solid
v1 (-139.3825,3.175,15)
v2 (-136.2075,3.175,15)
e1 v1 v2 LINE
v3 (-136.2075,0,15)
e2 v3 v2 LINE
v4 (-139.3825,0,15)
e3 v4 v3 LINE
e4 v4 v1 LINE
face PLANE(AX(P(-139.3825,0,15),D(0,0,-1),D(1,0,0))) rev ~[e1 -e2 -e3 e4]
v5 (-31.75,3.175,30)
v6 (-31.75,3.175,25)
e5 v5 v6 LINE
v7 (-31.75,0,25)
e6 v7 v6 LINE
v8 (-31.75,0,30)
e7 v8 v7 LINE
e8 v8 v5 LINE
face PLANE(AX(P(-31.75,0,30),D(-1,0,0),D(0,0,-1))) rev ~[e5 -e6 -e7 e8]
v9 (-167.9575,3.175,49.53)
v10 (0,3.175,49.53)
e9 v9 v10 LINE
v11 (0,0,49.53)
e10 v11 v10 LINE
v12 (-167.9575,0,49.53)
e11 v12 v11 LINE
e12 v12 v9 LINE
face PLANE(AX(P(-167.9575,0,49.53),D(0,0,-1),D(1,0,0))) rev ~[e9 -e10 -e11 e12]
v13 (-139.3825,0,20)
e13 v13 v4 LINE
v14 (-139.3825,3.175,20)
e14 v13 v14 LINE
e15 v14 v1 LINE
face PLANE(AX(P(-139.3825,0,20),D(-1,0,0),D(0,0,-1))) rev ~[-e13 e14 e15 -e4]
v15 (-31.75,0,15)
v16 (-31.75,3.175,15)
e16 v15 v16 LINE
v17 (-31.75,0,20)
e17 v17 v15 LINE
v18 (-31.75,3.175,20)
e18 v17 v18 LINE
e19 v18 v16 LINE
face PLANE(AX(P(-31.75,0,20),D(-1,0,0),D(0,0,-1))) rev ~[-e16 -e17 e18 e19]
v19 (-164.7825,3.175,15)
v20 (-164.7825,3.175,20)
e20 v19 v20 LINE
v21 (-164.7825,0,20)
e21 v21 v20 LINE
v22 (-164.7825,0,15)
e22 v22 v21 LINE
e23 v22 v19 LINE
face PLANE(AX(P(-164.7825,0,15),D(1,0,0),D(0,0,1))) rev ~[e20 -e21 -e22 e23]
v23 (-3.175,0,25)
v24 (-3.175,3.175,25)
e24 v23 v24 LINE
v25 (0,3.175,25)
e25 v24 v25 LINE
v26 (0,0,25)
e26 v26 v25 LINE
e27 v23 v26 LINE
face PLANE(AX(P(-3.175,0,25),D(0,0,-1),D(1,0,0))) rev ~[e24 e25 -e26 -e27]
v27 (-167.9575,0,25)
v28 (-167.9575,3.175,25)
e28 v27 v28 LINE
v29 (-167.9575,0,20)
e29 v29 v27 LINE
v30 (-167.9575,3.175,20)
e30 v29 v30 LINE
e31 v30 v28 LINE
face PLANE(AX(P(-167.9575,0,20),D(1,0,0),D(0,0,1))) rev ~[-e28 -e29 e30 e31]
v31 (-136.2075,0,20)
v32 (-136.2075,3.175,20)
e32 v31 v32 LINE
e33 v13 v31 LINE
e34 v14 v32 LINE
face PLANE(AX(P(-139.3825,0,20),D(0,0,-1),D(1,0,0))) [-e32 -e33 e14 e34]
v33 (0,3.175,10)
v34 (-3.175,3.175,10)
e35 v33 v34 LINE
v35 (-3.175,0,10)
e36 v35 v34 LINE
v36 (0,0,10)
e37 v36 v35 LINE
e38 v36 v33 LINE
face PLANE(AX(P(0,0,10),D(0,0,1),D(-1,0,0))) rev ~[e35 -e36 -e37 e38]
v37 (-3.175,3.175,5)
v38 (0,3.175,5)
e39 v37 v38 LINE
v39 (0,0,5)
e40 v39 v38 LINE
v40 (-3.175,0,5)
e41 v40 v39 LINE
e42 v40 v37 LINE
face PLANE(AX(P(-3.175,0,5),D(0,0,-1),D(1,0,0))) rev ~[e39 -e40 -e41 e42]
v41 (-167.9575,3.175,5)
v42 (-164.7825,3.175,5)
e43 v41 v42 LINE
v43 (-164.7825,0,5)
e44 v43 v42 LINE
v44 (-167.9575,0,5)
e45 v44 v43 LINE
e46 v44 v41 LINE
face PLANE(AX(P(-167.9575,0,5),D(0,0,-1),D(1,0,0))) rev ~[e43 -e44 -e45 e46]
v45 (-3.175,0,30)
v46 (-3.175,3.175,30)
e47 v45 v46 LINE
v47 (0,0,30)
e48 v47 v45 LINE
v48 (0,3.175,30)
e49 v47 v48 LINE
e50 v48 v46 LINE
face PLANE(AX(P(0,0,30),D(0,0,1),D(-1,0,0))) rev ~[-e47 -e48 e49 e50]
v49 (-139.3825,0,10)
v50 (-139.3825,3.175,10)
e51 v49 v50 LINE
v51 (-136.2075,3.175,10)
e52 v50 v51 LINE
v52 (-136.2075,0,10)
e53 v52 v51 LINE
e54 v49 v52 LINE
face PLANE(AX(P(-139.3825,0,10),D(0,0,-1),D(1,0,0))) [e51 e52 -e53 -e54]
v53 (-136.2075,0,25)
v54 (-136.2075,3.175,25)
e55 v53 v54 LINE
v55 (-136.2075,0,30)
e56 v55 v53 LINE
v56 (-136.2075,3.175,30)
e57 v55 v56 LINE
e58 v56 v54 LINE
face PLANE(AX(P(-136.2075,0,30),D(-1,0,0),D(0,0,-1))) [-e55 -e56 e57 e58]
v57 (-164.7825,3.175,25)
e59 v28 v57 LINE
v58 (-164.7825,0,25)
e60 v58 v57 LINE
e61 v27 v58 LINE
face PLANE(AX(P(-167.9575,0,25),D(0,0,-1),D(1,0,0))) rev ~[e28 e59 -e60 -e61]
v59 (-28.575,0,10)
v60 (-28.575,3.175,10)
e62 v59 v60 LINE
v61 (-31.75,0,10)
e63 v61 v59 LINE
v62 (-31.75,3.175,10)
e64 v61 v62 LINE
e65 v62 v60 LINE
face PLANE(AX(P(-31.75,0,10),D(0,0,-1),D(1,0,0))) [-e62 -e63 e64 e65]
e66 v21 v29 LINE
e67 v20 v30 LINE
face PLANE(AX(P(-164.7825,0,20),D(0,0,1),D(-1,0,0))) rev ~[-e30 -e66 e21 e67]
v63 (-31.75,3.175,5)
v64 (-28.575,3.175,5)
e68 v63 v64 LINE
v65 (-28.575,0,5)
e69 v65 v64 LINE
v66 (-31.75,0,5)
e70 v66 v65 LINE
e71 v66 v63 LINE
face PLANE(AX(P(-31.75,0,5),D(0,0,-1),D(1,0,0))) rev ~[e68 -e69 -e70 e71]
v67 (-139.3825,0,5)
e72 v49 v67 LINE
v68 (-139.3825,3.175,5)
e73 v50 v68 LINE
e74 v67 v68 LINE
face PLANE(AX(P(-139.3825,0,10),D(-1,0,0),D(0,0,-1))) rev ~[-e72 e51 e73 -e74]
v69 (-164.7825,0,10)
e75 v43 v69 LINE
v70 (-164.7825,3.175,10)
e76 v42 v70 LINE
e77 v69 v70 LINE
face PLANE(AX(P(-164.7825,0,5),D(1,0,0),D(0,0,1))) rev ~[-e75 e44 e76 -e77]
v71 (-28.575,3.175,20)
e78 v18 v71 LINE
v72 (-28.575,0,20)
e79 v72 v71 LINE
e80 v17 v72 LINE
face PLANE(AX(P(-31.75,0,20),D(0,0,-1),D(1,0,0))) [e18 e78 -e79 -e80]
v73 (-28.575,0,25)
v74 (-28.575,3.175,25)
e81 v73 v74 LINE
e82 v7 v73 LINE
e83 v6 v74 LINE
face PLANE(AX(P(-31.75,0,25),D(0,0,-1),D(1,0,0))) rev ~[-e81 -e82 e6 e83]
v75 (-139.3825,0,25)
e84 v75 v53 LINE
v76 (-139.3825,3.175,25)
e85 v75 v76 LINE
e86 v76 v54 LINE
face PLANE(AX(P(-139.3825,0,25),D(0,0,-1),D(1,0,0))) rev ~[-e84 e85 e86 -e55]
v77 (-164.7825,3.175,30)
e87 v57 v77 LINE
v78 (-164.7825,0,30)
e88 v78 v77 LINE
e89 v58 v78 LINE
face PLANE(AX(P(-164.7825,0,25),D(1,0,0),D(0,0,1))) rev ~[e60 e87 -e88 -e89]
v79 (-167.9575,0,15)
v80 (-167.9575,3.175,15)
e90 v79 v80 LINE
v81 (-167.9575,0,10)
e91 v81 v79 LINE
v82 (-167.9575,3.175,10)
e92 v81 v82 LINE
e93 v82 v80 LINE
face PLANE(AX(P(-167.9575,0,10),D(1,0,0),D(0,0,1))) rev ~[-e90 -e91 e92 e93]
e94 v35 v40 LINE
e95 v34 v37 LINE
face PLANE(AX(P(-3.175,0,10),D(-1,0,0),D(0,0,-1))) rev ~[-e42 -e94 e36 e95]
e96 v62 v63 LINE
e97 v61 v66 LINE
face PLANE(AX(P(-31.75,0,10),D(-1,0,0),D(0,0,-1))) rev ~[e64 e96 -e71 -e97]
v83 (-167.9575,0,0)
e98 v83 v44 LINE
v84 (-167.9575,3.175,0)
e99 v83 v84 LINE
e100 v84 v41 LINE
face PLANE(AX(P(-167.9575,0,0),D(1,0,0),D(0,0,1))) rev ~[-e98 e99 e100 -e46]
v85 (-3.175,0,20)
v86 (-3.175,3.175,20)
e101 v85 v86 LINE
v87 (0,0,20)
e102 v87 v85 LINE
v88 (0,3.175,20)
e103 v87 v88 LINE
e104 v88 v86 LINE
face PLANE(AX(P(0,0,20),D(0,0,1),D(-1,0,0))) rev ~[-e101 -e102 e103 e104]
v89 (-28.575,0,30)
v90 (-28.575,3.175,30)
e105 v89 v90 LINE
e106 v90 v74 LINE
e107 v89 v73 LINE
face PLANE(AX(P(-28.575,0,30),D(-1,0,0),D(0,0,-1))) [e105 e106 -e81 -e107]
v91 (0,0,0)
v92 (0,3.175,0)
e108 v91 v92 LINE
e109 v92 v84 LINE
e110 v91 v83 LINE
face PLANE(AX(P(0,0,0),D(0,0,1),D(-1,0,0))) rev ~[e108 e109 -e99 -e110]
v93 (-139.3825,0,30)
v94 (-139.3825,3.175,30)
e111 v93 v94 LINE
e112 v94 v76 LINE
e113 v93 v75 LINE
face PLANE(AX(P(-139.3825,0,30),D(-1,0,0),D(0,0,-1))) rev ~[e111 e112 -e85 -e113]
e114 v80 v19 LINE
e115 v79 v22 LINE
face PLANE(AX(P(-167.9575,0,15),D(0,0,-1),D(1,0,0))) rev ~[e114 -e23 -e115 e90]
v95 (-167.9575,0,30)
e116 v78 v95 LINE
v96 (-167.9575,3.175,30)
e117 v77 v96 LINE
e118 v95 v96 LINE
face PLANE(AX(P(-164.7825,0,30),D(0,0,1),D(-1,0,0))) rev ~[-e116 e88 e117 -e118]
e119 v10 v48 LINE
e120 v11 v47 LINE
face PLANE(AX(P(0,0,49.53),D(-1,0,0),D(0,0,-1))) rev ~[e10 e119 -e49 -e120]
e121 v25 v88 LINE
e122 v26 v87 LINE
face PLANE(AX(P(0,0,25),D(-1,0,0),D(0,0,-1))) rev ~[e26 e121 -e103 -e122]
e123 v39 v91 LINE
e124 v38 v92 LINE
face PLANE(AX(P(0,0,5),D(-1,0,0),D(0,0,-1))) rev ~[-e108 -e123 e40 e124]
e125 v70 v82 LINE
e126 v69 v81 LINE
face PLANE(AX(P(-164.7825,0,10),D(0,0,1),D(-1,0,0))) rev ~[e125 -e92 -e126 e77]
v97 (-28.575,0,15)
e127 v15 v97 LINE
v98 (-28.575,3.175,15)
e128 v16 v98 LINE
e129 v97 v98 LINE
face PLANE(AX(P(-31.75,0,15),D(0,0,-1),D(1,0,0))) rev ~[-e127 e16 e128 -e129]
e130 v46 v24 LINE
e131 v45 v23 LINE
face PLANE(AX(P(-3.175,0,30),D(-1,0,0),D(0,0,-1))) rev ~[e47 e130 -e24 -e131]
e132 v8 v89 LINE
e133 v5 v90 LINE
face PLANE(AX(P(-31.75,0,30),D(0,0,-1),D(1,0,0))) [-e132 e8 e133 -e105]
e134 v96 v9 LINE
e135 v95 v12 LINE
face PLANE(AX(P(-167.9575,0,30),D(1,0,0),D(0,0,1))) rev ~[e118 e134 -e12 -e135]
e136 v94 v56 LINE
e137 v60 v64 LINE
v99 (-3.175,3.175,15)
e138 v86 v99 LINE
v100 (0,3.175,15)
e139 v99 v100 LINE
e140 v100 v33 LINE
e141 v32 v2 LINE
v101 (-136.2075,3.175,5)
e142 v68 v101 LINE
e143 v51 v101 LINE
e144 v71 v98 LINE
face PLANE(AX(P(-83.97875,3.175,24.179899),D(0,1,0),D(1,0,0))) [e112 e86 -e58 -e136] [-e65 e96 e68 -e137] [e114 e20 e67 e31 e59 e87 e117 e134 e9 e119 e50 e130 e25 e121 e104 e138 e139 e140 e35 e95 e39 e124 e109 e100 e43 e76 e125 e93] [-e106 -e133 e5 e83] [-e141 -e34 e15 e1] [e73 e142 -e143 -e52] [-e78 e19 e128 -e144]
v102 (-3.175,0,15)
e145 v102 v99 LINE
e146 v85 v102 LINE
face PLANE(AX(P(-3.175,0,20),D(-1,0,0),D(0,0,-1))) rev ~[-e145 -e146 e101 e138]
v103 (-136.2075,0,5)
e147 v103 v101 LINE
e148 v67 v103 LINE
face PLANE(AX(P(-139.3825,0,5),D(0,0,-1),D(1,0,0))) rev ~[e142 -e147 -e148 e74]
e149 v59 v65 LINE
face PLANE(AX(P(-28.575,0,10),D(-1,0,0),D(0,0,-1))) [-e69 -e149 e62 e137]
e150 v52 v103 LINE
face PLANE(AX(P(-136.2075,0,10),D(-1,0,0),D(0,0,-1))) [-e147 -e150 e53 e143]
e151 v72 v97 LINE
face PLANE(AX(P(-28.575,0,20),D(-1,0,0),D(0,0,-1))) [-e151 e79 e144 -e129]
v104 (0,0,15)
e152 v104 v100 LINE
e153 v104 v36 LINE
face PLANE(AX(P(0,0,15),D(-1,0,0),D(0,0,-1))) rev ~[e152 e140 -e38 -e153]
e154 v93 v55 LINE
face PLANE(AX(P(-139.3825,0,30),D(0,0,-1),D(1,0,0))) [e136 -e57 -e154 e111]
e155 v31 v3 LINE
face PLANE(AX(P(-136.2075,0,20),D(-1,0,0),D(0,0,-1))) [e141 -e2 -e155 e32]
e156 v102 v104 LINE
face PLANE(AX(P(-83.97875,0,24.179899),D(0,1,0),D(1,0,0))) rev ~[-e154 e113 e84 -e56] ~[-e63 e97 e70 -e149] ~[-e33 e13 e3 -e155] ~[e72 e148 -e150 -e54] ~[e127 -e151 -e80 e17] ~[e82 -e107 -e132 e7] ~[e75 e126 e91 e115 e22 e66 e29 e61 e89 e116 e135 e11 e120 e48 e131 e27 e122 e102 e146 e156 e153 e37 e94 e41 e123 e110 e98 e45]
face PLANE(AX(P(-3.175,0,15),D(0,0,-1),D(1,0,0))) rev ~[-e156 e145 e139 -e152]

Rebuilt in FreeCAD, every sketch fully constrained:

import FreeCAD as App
import Part
import Sketcher

V = App.Vector


def add_polygon(sketch, points):
    """Adds a closed chain of lines whose ends are joined by coincident constraints."""
    first, n = sketch.GeometryCount, len(points)
    for a, b in zip(points, points[1:] + points[:1]):
        sketch.addGeometry(Part.LineSegment(App.Vector(*a, 0), App.Vector(*b, 0)), False)
    for i in range(n):
        sketch.addConstraint(Sketcher.Constraint("Coincident", first + i, 2, first + (i + 1) % n, 1))

doc = App.newDocument("Part")
body = doc.addObject("PartDesign::Body", "Body")

# Sketch on XZ plane
sketch1 = body.newObject("Sketcher::SketchObject", "Sketch")
sketch1.AttachmentSupport = (doc.getObject("XZ_Plane"), [""])
sketch1.MapMode = "FlatFace"
add_polygon(sketch1, [(-168, 5), (-164.8, 5), (-164.8, 10), (-168, 10), (-168, 15), (-164.8, 15), (-164.8, 20), (-168, 20), (-168, 25), (-164.8, 25), (-164.8, 30), (-168, 30), (-168, 49.5), (0, 49.5), (0, 30), (-3.2, 30), (-3.2, 25), (0, 25), (0, 20), (-3.2, 20), (-3.2, 15), (0, 15), (0, 10), (-3.2, 10), (-3.2, 5), (0, 5), (0, 0), (-168, 0)])  # lines 0-27
add_polygon(sketch1, [(-136.2, 30), (-139.4, 30), (-139.4, 25), (-136.2, 25)])  # lines 28-31
add_polygon(sketch1, [(-28.6, 30), (-31.8, 30), (-31.8, 25), (-28.6, 25)])  # lines 32-35
add_polygon(sketch1, [(-136.2, 20), (-139.4, 20), (-139.4, 15), (-136.2, 15)])  # lines 36-39
add_polygon(sketch1, [(-136.2, 10), (-139.4, 10), (-139.4, 5), (-136.2, 5)])  # lines 40-43
add_polygon(sketch1, [(-28.6, 20), (-31.8, 20), (-31.8, 15), (-28.6, 15)])  # lines 44-47
add_polygon(sketch1, [(-28.6, 10), (-31.8, 10), (-31.8, 5), (-28.6, 5)])  # lines 48-51
sketch1.addConstraint(Sketcher.Constraint("Horizontal", 0))
sketch1.addConstraint(Sketcher.Constraint("Vertical", 1))
sketch1.addConstraint(Sketcher.Constraint("Horizontal", 2))
sketch1.addConstraint(Sketcher.Constraint("Vertical", 3))
sketch1.addConstraint(Sketcher.Constraint("Horizontal", 4))
sketch1.addConstraint(Sketcher.Constraint("Vertical", 5))
sketch1.addConstraint(Sketcher.Constraint("Horizontal", 6))
sketch1.addConstraint(Sketcher.Constraint("Vertical", 7))
sketch1.addConstraint(Sketcher.Constraint("Horizontal", 8))
sketch1.addConstraint(Sketcher.Constraint("Vertical", 9))
sketch1.addConstraint(Sketcher.Constraint("Horizontal", 10))
sketch1.addConstraint(Sketcher.Constraint("Vertical", 11))
sketch1.addConstraint(Sketcher.Constraint("Horizontal", 12))
sketch1.addConstraint(Sketcher.Constraint("Vertical", 13))
sketch1.addConstraint(Sketcher.Constraint("Horizontal", 14))
sketch1.addConstraint(Sketcher.Constraint("Vertical", 15))
sketch1.addConstraint(Sketcher.Constraint("Horizontal", 16))
sketch1.addConstraint(Sketcher.Constraint("Vertical", 17))
sketch1.addConstraint(Sketcher.Constraint("Horizontal", 18))
sketch1.addConstraint(Sketcher.Constraint("Vertical", 19))
sketch1.addConstraint(Sketcher.Constraint("Horizontal", 20))
sketch1.addConstraint(Sketcher.Constraint("Vertical", 21))
sketch1.addConstraint(Sketcher.Constraint("Horizontal", 22))
sketch1.addConstraint(Sketcher.Constraint("Vertical", 23))
sketch1.addConstraint(Sketcher.Constraint("Horizontal", 24))
sketch1.addConstraint(Sketcher.Constraint("Vertical", 25))
sketch1.addConstraint(Sketcher.Constraint("Horizontal", 26))
sketch1.addConstraint(Sketcher.Constraint("Vertical", 27))
sketch1.addConstraint(Sketcher.Constraint("Horizontal", 28))
sketch1.addConstraint(Sketcher.Constraint("Vertical", 29))
sketch1.addConstraint(Sketcher.Constraint("Horizontal", 30))
sketch1.addConstraint(Sketcher.Constraint("Vertical", 31))
sketch1.addConstraint(Sketcher.Constraint("Horizontal", 32))
sketch1.addConstraint(Sketcher.Constraint("Vertical", 33))
sketch1.addConstraint(Sketcher.Constraint("Horizontal", 34))
sketch1.addConstraint(Sketcher.Constraint("Vertical", 35))
sketch1.addConstraint(Sketcher.Constraint("Horizontal", 36))
sketch1.addConstraint(Sketcher.Constraint("Vertical", 37))
sketch1.addConstraint(Sketcher.Constraint("Horizontal", 38))
sketch1.addConstraint(Sketcher.Constraint("Vertical", 39))
sketch1.addConstraint(Sketcher.Constraint("Horizontal", 40))
sketch1.addConstraint(Sketcher.Constraint("Vertical", 41))
sketch1.addConstraint(Sketcher.Constraint("Horizontal", 42))
sketch1.addConstraint(Sketcher.Constraint("Vertical", 43))
sketch1.addConstraint(Sketcher.Constraint("Horizontal", 44))
sketch1.addConstraint(Sketcher.Constraint("Vertical", 45))
sketch1.addConstraint(Sketcher.Constraint("Horizontal", 46))
sketch1.addConstraint(Sketcher.Constraint("Vertical", 47))
sketch1.addConstraint(Sketcher.Constraint("Horizontal", 48))
sketch1.addConstraint(Sketcher.Constraint("Vertical", 49))
sketch1.addConstraint(Sketcher.Constraint("Horizontal", 50))
sketch1.addConstraint(Sketcher.Constraint("Vertical", 51))
sketch1.addConstraint(Sketcher.Constraint("Coincident", 25, 2, -1, 1))
sketch1.addConstraint(Sketcher.Constraint("PointOnObject", 12, 2, -2))
sketch1.addConstraint(Sketcher.Constraint("PointOnObject", 16, 2, -2))
sketch1.addConstraint(Sketcher.Constraint("PointOnObject", 20, 2, -2))
sketch1.addConstraint(Sketcher.Constraint("Horizontal", 10, 2, 13, 2))
sketch1.addConstraint(Sketcher.Constraint("Horizontal", 8, 2, 15, 2))
sketch1.addConstraint(Sketcher.Constraint("Horizontal", 6, 2, 17, 2))
sketch1.addConstraint(Sketcher.Constraint("Horizontal", 4, 2, 19, 2))
sketch1.addConstraint(Sketcher.Constraint("Horizontal", 2, 2, 21, 2))
sketch1.addConstraint(Sketcher.Constraint("Horizontal", 0, 2, 23, 2))
sketch1.addConstraint(Sketcher.Constraint("Horizontal", 14, 2, 28, 2))
sketch1.addConstraint(Sketcher.Constraint("Horizontal", 16, 2, 29, 2))
sketch1.addConstraint(Sketcher.Constraint("Horizontal", 31, 2, 32, 2))
sketch1.addConstraint(Sketcher.Constraint("Horizontal", 30, 2, 33, 2))
sketch1.addConstraint(Sketcher.Constraint("Horizontal", 18, 2, 36, 2))
sketch1.addConstraint(Sketcher.Constraint("Horizontal", 20, 2, 37, 2))
sketch1.addConstraint(Sketcher.Constraint("Horizontal", 22, 2, 40, 2))
sketch1.addConstraint(Sketcher.Constraint("Horizontal", 27, 2, 41, 2))
sketch1.addConstraint(Sketcher.Constraint("Horizontal", 39, 2, 44, 2))
sketch1.addConstraint(Sketcher.Constraint("Horizontal", 38, 2, 45, 2))
sketch1.addConstraint(Sketcher.Constraint("Horizontal", 43, 2, 48, 2))
sketch1.addConstraint(Sketcher.Constraint("Horizontal", 42, 2, 49, 2))
sketch1.addConstraint(Sketcher.Constraint("Vertical", 1, 2, 4, 2))
sketch1.addConstraint(Sketcher.Constraint("Vertical", 3, 2, 6, 2))
sketch1.addConstraint(Sketcher.Constraint("Vertical", 5, 2, 8, 2))
sketch1.addConstraint(Sketcher.Constraint("Vertical", 7, 2, 10, 2))
sketch1.addConstraint(Sketcher.Constraint("Vertical", 15, 2, 18, 2))
sketch1.addConstraint(Sketcher.Constraint("Vertical", 19, 2, 22, 2))
sketch1.addConstraint(Sketcher.Constraint("Vertical", 11, 2, 26, 2))
sketch1.addConstraint(Sketcher.Constraint("Vertical", 29, 2, 36, 2))
sketch1.addConstraint(Sketcher.Constraint("Vertical", 31, 2, 38, 2))
sketch1.addConstraint(Sketcher.Constraint("Vertical", 37, 2, 40, 2))
sketch1.addConstraint(Sketcher.Constraint("Vertical", 39, 2, 42, 2))
sketch1.addConstraint(Sketcher.Constraint("Vertical", 33, 2, 44, 2))
sketch1.addConstraint(Sketcher.Constraint("Vertical", 35, 2, 46, 2))
sketch1.addConstraint(Sketcher.Constraint("Vertical", 45, 2, 48, 2))
sketch1.addConstraint(Sketcher.Constraint("Vertical", 47, 2, 50, 2))
sketch1.addConstraint(Sketcher.Constraint("Equal", 10, 14))
sketch1.addConstraint(Sketcher.Constraint("Equal", 24, 28))
sketch1.addConstraint(Sketcher.Constraint("Equal", 30, 32))
sketch1.addConstraint(Sketcher.Constraint("Equal", 1, 3))
sketch1.addConstraint(Sketcher.Constraint("Equal", 3, 5))
sketch1.addConstraint(Sketcher.Constraint("Equal", 5, 7))
sketch1.addConstraint(Sketcher.Constraint("Equal", 7, 9))
sketch1.addConstraint(Sketcher.Constraint("Equal", 23, 25))
sketch1.addConstraint(Sketcher.Constraint("DistanceY", 1, 1, 1, 2, 5.0))
sketch1.addConstraint(Sketcher.Constraint("DistanceY", 11, 1, 11, 2, 19.53))
sketch1.addConstraint(Sketcher.Constraint("DistanceX", 9, 2, 28, 2, 25.4))
sketch1.addConstraint(Sketcher.Constraint("DistanceX", 34, 2, 15, 2, 25.4))
sketch1.addConstraint(Sketcher.Constraint("DistanceX", 0, 1, 0, 2, 3.175))
sketch1.addConstraint(Sketcher.Constraint("DistanceX", 12, 1, 12, 2, 167.9575))
pad1 = body.newObject("PartDesign::Pad", "Pad")
pad1.Profile = sketch1
pad1.Length = 3.175
pad1.Reversed = True

doc.recompute()
